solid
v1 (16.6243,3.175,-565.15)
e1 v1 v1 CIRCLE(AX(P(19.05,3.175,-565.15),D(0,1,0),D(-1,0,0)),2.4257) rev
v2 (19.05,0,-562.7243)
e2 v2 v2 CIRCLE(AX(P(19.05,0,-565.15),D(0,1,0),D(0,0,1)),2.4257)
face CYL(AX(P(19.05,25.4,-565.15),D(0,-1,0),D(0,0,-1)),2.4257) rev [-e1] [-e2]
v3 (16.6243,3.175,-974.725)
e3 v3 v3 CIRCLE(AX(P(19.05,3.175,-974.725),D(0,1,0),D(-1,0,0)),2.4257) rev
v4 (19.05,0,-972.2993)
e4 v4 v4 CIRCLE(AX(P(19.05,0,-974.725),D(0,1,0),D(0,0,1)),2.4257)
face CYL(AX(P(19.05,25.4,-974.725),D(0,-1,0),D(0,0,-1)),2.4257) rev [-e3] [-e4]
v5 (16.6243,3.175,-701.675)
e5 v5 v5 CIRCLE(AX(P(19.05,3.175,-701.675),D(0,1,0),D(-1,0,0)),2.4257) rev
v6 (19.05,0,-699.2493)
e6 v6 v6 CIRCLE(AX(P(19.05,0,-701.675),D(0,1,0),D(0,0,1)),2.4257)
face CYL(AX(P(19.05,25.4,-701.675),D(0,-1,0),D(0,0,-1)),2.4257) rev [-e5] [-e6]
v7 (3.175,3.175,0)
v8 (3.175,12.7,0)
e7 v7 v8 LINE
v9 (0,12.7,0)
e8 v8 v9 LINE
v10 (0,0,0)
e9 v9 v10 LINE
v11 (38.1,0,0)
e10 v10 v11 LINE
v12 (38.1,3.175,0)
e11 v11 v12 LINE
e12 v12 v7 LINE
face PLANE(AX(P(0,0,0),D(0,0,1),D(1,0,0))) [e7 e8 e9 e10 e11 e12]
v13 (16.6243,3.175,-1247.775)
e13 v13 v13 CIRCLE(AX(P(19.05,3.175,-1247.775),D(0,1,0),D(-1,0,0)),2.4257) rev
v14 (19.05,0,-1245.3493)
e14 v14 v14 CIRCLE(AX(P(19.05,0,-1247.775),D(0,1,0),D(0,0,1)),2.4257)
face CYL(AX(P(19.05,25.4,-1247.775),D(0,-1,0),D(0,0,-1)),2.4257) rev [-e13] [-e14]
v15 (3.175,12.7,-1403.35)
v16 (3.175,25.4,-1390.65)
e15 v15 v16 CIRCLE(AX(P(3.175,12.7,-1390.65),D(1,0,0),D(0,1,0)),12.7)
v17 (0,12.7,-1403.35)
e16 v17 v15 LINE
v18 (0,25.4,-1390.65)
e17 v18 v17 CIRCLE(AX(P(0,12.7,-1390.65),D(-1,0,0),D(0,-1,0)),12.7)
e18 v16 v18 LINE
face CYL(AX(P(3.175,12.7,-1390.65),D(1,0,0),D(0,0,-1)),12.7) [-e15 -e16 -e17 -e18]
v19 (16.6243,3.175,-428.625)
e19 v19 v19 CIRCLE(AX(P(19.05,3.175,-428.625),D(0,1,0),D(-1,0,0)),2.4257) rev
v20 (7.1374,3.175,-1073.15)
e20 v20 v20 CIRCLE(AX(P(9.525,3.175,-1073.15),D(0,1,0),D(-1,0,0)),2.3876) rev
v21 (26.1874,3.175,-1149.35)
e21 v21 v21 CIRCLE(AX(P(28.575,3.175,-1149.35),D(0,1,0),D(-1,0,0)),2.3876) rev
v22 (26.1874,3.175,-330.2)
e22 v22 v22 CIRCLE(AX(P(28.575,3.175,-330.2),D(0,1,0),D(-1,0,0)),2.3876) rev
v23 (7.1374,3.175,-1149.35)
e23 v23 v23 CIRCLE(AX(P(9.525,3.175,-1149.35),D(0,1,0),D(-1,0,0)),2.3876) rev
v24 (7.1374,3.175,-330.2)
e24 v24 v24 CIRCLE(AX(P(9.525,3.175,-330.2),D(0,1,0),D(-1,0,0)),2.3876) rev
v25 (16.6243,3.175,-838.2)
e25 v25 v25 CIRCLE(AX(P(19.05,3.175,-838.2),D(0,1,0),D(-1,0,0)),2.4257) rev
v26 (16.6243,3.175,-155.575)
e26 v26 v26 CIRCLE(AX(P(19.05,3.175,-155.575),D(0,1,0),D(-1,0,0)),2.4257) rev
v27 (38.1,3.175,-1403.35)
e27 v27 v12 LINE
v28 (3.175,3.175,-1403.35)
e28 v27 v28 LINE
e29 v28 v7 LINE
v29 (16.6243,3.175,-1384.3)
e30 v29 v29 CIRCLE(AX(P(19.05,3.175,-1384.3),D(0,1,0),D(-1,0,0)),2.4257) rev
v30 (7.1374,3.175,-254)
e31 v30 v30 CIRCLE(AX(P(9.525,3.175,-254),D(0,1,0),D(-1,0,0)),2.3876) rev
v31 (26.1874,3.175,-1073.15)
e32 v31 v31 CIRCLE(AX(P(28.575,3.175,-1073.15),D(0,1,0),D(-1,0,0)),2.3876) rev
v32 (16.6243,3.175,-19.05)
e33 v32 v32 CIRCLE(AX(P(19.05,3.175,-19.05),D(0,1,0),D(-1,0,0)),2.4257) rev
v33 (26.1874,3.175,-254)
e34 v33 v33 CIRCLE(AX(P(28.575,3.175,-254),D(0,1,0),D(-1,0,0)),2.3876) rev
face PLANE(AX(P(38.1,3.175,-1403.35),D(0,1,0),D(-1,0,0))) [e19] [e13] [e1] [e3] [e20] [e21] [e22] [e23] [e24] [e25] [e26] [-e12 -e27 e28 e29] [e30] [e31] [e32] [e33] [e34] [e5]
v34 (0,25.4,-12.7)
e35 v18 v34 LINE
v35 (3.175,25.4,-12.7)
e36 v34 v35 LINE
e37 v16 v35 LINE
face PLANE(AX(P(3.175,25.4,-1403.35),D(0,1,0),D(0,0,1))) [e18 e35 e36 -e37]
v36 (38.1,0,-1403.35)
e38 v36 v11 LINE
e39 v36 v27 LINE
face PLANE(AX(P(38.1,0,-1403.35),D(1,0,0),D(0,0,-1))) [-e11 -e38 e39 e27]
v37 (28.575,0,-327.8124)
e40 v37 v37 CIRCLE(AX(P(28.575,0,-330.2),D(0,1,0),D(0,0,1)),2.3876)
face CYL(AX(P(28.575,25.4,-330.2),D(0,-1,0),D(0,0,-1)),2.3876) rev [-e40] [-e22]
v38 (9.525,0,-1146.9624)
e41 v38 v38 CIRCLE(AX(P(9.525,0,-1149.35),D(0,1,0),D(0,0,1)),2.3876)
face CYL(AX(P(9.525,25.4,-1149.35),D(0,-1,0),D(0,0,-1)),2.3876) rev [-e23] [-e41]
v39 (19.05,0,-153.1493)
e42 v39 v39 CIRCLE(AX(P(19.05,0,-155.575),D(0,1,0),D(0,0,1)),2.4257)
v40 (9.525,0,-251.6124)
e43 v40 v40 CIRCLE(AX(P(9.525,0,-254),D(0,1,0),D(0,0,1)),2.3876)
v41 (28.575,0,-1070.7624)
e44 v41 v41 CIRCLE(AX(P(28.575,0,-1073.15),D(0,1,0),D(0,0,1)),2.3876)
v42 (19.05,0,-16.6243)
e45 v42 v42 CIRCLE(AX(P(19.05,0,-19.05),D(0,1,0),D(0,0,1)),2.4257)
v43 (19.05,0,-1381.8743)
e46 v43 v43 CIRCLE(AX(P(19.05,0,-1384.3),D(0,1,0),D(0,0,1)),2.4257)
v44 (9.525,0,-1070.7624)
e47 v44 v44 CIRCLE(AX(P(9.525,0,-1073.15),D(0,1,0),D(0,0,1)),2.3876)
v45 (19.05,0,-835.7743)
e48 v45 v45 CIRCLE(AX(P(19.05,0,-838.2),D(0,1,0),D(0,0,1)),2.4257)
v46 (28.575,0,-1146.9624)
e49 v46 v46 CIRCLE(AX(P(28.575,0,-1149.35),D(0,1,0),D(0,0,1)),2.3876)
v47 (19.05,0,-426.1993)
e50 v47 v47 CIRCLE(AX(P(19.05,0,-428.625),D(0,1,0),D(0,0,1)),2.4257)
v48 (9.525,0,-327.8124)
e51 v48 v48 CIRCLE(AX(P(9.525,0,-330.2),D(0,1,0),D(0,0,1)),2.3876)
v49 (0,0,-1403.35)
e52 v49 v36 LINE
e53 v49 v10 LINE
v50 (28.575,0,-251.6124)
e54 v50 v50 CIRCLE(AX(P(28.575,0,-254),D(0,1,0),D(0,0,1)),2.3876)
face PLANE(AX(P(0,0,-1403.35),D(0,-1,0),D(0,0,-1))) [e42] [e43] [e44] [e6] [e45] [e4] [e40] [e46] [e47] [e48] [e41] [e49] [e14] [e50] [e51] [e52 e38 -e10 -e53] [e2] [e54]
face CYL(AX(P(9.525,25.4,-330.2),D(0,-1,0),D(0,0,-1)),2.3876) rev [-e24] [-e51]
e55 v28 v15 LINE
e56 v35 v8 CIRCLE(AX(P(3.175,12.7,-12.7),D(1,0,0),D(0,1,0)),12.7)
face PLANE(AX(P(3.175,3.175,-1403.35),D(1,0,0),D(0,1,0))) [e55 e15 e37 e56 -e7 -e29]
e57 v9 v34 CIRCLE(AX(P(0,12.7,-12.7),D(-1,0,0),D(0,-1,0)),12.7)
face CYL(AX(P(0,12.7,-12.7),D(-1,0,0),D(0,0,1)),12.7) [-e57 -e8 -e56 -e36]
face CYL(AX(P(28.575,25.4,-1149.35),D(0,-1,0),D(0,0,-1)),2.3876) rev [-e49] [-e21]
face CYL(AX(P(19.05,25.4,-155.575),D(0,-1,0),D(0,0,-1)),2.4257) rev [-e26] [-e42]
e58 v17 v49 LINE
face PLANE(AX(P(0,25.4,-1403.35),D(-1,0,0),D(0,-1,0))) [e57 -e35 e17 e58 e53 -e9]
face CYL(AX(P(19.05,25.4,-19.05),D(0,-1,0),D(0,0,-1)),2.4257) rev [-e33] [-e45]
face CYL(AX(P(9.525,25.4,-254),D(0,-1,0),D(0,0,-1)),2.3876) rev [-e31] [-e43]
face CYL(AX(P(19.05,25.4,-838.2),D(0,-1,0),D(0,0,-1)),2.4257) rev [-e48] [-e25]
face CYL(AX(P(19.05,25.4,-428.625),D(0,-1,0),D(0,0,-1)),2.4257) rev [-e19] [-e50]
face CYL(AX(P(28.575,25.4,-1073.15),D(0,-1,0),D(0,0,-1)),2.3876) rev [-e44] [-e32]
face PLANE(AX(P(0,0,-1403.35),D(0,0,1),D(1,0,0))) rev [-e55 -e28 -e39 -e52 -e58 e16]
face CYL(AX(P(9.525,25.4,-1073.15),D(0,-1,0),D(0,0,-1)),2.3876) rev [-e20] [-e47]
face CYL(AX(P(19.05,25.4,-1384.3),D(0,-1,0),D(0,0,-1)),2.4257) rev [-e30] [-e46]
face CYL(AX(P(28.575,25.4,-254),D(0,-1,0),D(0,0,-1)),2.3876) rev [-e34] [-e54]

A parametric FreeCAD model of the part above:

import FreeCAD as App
import Part
import Sketcher
Q = App.Units.Quantity


def edges_at(feature, points):
    """Names of the edges that pass closest to the given points."""
    edges = feature.Shape.Edges
    near = lambda p: min(range(len(edges)), key=lambda i: edges[i].distToShape(Part.Vertex(*p))[0])
    return sorted({f"Edge{near(p) + 1}" for p in points})

doc = App.newDocument("Part")
body = doc.addObject("PartDesign::Body", "Body")

# Sketch on XY plane
sketch1 = body.newObject("Sketcher::SketchObject", "Sketch")
sketch1.AttachmentSupport = (doc.getObject("XY_Plane"), [""])
sketch1.MapMode = "FlatFace"
sketch1.addGeometry(Part.LineSegment(App.Vector(0, 0, 0), App.Vector(38.1, 0, 0)), False)
sketch1.addGeometry(Part.LineSegment(App.Vector(38.1, 0, 0), App.Vector(38.1, 3.2, 0)), False)
sketch1.addGeometry(Part.LineSegment(App.Vector(38.1, 3.2, 0), App.Vector(3.2, 3.2, 0)), False)
sketch1.addGeometry(Part.LineSegment(App.Vector(3.2, 3.2, 0), App.Vector(3.2, 25.4, 0)), False)
sketch1.addGeometry(Part.LineSegment(App.Vector(3.2, 25.4, 0), App.Vector(0, 25.4, 0)), False)
sketch1.addGeometry(Part.LineSegment(App.Vector(0, 25.4, 0), App.Vector(0, 0, 0)), False)
sketch1.addConstraint(Sketcher.Constraint("Coincident", 0, 2, 1, 1))
sketch1.addConstraint(Sketcher.Constraint("Coincident", 1, 2, 2, 1))
sketch1.addConstraint(Sketcher.Constraint("Coincident", 2, 2, 3, 1))
sketch1.addConstraint(Sketcher.Constraint("Coincident", 3, 2, 4, 1))
sketch1.addConstraint(Sketcher.Constraint("Coincident", 4, 2, 5, 1))
sketch1.addConstraint(Sketcher.Constraint("Coincident", 5, 2, 0, 1))
sketch1.addConstraint(Sketcher.Constraint("Horizontal", 0))
sketch1.addConstraint(Sketcher.Constraint("Vertical", 1))
sketch1.addConstraint(Sketcher.Constraint("Horizontal", 2))
sketch1.addConstraint(Sketcher.Constraint("Vertical", 3))
sketch1.addConstraint(Sketcher.Constraint("Horizontal", 4))
sketch1.addConstraint(Sketcher.Constraint("Vertical", 5))
sketch1.addConstraint(Sketcher.Constraint("Coincident", 5, 2, -1, 1))
sketch1.addConstraint(Sketcher.Constraint("Equal", 4, 1))
sketch1.addConstraint(Sketcher.Constraint("DistanceY", 5, 2, 5, 1, Q("1 in")))
sketch1.addConstraint(Sketcher.Constraint("DistanceX", 0, 1, 0, 2, Q("1.5 in")))
sketch1.addConstraint(Sketcher.Constraint("DistanceX", 2, 2, 2, 1, Q("1.375 in")))
pad1 = body.newObject("PartDesign::Pad", "Pad")
pad1.Profile = sketch1
pad1.Length = Q("55.25 in")
pad1.Reversed = True

# Sketch on XZ plane
sketch2 = body.newObject("Sketcher::SketchObject", "Sketch001")
sketch2.AttachmentSupport = (doc.getObject("XZ_Plane"), [""])
sketch2.MapMode = "FlatFace"
sketch2.addGeometry(Part.Circle(App.Vector(9.5, -254, 0), App.Vector(0, 0, 1), 2.4), False)
sketch2.addGeometry(Part.Circle(App.Vector(28.6, -254, 0), App.Vector(0, 0, 1), 2.4), False)
sketch2.addGeometry(Part.Circle(App.Vector(9.5, -1073.2, 0), App.Vector(0, 0, 1), 2.4), False)
sketch2.addGeometry(Part.Circle(App.Vector(28.6, -1073.2, 0), App.Vector(0, 0, 1), 2.4), False)
sketch2.addGeometry(Part.Circle(App.Vector(19.1, -19.1, 0), App.Vector(0, 0, 1), 2.4), False)
sketch2.addGeometry(Part.Circle(App.Vector(19.1, -155.6, 0), App.Vector(0, 0, 1), 2.4), False)
sketch2.addGeometry(Part.Circle(App.Vector(19.1, -428.6, 0), App.Vector(0, 0, 1), 2.4), False)
sketch2.addGeometry(Part.Circle(App.Vector(19.1, -565.1, 0), App.Vector(0, 0, 1), 2.4), False)
sketch2.addGeometry(Part.Circle(App.Vector(19.1, -701.7, 0), App.Vector(0, 0, 1), 2.4), False)
sketch2.addGeometry(Part.Circle(App.Vector(19.1, -838.2, 0), App.Vector(0, 0, 1), 2.4), False)
sketch2.addGeometry(Part.Circle(App.Vector(19.1, -974.7, 0), App.Vector(0, 0, 1), 2.4), False)
sketch2.addGeometry(Part.Circle(App.Vector(19.1, -1247.8, 0), App.Vector(0, 0, 1), 2.4), False)
sketch2.addGeometry(Part.Circle(App.Vector(19.1, -1384.3, 0), App.Vector(0, 0, 1), 2.4), False)
sketch2.addGeometry(Part.Circle(App.Vector(28.6, -330.2, 0), App.Vector(0, 0, 1), 2.4), False)
sketch2.addGeometry(Part.Circle(App.Vector(9.5, -330.2, 0), App.Vector(0, 0, 1), 2.4), False)
sketch2.addGeometry(Part.Circle(App.Vector(28.6, -1149.3, 0), App.Vector(0, 0, 1), 2.4), False)
sketch2.addGeometry(Part.Circle(App.Vector(9.5, -1149.3, 0), App.Vector(0, 0, 1), 2.4), False)
sketch2.addConstraint(Sketcher.Constraint("Equal", 0, 1))
sketch2.addConstraint(Sketcher.Constraint("Equal", 1, 2))
sketch2.addConstraint(Sketcher.Constraint("Equal", 2, 3))
sketch2.addConstraint(Sketcher.Constraint("Equal", 4, 5))
sketch2.addConstraint(Sketcher.Constraint("Equal", 5, 6))
sketch2.addConstraint(Sketcher.Constraint("Equal", 6, 7))
sketch2.addConstraint(Sketcher.Constraint("Equal", 7, 8))
sketch2.addConstraint(Sketcher.Constraint("Equal", 8, 9))
sketch2.addConstraint(Sketcher.Constraint("Equal", 9, 10))
sketch2.addConstraint(Sketcher.Constraint("Equal", 10, 11))
sketch2.addConstraint(Sketcher.Constraint("Equal", 11, 12))
sketch2.addConstraint(Sketcher.Constraint("Equal", 3, 13))
sketch2.addConstraint(Sketcher.Constraint("Equal", 13, 14))
sketch2.addConstraint(Sketcher.Constraint("Equal", 14, 15))
sketch2.addConstraint(Sketcher.Constraint("Equal", 15, 16))
sketch2.addConstraint(Sketcher.Constraint("Horizontal", 0, 3, 1, 3))
sketch2.addConstraint(Sketcher.Constraint("Horizontal", 2, 3, 3, 3))
sketch2.addConstraint(Sketcher.Constraint("Horizontal", 13, 3, 14, 3))
sketch2.addConstraint(Sketcher.Constraint("Horizontal", 15, 3, 16, 3))
sketch2.addConstraint(Sketcher.Constraint("Vertical", 0, 3, 2, 3))
sketch2.addConstraint(Sketcher.Constraint("Vertical", 1, 3, 3, 3))
sketch2.addConstraint(Sketcher.Constraint("Vertical", 4, 3, 5, 3))
sketch2.addConstraint(Sketcher.Constraint("Vertical", 5, 3, 6, 3))
sketch2.addConstraint(Sketcher.Constraint("Vertical", 6, 3, 7, 3))
sketch2.addConstraint(Sketcher.Constraint("Vertical", 7, 3, 8, 3))
sketch2.addConstraint(Sketcher.Constraint("Vertical", 8, 3, 9, 3))
sketch2.addConstraint(Sketcher.Constraint("Vertical", 9, 3, 10, 3))
sketch2.addConstraint(Sketcher.Constraint("Vertical", 10, 3, 11, 3))
sketch2.addConstraint(Sketcher.Constraint("Vertical", 11, 3, 12, 3))
sketch2.addConstraint(Sketcher.Constraint("Vertical", 3, 3, 13, 3))
sketch2.addConstraint(Sketcher.Constraint("Vertical", 2, 3, 14, 3))
sketch2.addConstraint(Sketcher.Constraint("Vertical", 13, 3, 15, 3))
sketch2.addConstraint(Sketcher.Constraint("Vertical", 14, 3, 16, 3))
sketch2.addConstraint(Sketcher.Constraint("Diameter", 0, Q("0.188 in")))
sketch2.addConstraint(Sketcher.Constraint("Diameter", 4, Q("0.191 in")))
sketch2.addConstraint(Sketcher.Constraint("DistanceY", 0, 3, -1, 1, Q("10 in")))
sketch2.addConstraint(Sketcher.Constraint("DistanceY", 9, 3, -1, 1, Q("33 in")))
sketch2.addConstraint(Sketcher.Constraint("DistanceY", 13, 3, -1, 1, Q("13 in")))
sketch2.addConstraint(Sketcher.Constraint("DistanceY", 2, 3, 7, 3, Q("20 in")))
sketch2.addConstraint(Sketcher.Constraint("DistanceY", 15, 3, 3, 3, Q("3 in")))
sketch2.addConstraint(Sketcher.Constraint("DistanceY", 12, 3, -1, 1, Q("54.5 in")))
sketch2.addConstraint(Sketcher.Constraint("DistanceY", 2, 3, 4, 3, Q("41.5 in")))
sketch2.addConstraint(Sketcher.Constraint("DistanceY", 11, 3, 8, 3, Q("21.5 in")))
sketch2.addConstraint(Sketcher.Constraint("DistanceY", 2, 3, -1, 1, Q("42.25 in")))
sketch2.addConstraint(Sketcher.Constraint("DistanceX", -1, 1, 4, 3, Q("0.75 in")))
sketch2.addConstraint(Sketcher.Constraint("DistanceX", 0, 3, 1, 3, Q("0.75 in")))
sketch2.addConstraint(Sketcher.Constraint("DistanceY", 6, 3, 5, 3, Q("10.75 in")))
sketch2.addConstraint(Sketcher.Constraint("DistanceY", 8, 3, 6, 3, Q("10.75 in")))
sketch2.addConstraint(Sketcher.Constraint("DistanceY", 10, 3, 8, 3, Q("10.75 in")))
sketch2.addConstraint(Sketcher.Constraint("DistanceX", -1, 1, 0, 3, Q("0.375 in")))
sketch2.addConstraint(Sketcher.Constraint("DistanceY", 5, 3, -1, 1, Q("6.125 in")))
pocket1 = body.newObject("PartDesign::Pocket", "Pocket")
pocket1.Profile = sketch2
pocket1.Type = "ThroughAll"
doc.recompute()

fillet = body.newObject("PartDesign::Fillet", "Fillet")
fillet.Base = (pocket1, edges_at(pocket1, [(1.587, 25.4, -1403.35), (1.587, 25.4, 0)]))
fillet.Radius = Q("0.5 in")

doc.recompute()
